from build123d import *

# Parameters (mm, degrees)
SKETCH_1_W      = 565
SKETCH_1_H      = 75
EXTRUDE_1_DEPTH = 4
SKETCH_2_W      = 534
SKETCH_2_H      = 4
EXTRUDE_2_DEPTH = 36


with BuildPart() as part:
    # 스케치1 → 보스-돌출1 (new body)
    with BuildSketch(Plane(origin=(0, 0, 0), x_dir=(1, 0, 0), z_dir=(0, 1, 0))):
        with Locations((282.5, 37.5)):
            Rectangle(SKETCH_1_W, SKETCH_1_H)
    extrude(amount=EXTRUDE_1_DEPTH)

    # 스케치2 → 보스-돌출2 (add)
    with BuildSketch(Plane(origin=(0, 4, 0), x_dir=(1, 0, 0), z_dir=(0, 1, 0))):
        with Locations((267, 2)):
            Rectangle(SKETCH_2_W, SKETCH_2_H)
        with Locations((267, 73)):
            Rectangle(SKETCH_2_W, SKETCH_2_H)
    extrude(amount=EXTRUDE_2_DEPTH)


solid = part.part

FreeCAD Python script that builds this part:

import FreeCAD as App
import Part
import Sketcher

V = App.Vector
Q = App.Units.Quantity


def add_polygon(sketch, points):
    """Adds a closed chain of lines whose ends are joined by coincident constraints."""
    first, n = sketch.GeometryCount, len(points)
    for a, b in zip(points, points[1:] + points[:1]):
        sketch.addGeometry(Part.LineSegment(App.Vector(*a, 0), App.Vector(*b, 0)), False)
    for i in range(n):
        sketch.addConstraint(Sketcher.Constraint("Coincident", first + i, 2, first + (i + 1) % n, 1))

doc = App.newDocument("Part")
body = doc.addObject("PartDesign::Body", "Body")

# Sketch on XZ plane
sketch1 = doc.addObject("Sketcher::SketchObject", "Sketch")
body.addObject(sketch1)
sketch1.AttachmentSupport = (doc.XZ_Plane, [""])
sketch1.MapMode = "FlatFace"
add_polygon(sketch1, [(0, -75), (0, 0), (565, 0), (565, -75)])  # lines 0-3
sketch1.addConstraint(Sketcher.Constraint("Vertical", 0))
sketch1.addConstraint(Sketcher.Constraint("Horizontal", 1))
sketch1.addConstraint(Sketcher.Constraint("Vertical", 2))
sketch1.addConstraint(Sketcher.Constraint("Horizontal", 3))
sketch1.addConstraint(Sketcher.Constraint("Coincident", 0, 2, -1, 1))
sketch1.addConstraint(Sketcher.Constraint("DistanceX", 1, 1, 1, 2, Q("565 mm")))
sketch1.addConstraint(Sketcher.Constraint("DistanceY", 0, 1, 0, 2, Q("75 mm")))
pad1 = doc.addObject("PartDesign::Pad", "Pad")
body.addObject(pad1)
pad1.Profile = sketch1
pad1.Length = 4
pad1.Reversed = True

# Sketch on XZ plane
sketch2 = doc.addObject("Sketcher::SketchObject", "Sketch001")
body.addObject(sketch2)
sketch2.AttachmentSupport = (doc.XZ_Plane, [""])
sketch2.MapMode = "FlatFace"
sketch2.AttachmentOffset = App.Placement(V(0, 0, -4), App.Rotation())
add_polygon(sketch2, [(0, -4), (0, 0), (534, 0), (534, -4)])  # lines 0-3
add_polygon(sketch2, [(0, -75), (0, -71), (534, -71), (534, -75)])  # lines 4-7
sketch2.addConstraint(Sketcher.Constraint("Vertical", 0))
sketch2.addConstraint(Sketcher.Constraint("Horizontal", 1))
sketch2.addConstraint(Sketcher.Constraint("Vertical", 2))
sketch2.addConstraint(Sketcher.Constraint("Horizontal", 3))
sketch2.addConstraint(Sketcher.Constraint("Vertical", 4))
sketch2.addConstraint(Sketcher.Constraint("Horizontal", 5))
sketch2.addConstraint(Sketcher.Constraint("Vertical", 6))
sketch2.addConstraint(Sketcher.Constraint("Horizontal", 7))
sketch2.addConstraint(Sketcher.Constraint("Coincident", 0, 2, -1, 1))
sketch2.addConstraint(Sketcher.Constraint("PointOnObject", 4, 2, -2))
sketch2.addConstraint(Sketcher.Constraint("Vertical", 2, 2, 5, 2))
sketch2.addConstraint(Sketcher.Constraint("Equal", 2, 4))
sketch2.addConstraint(Sketcher.Constraint("DistanceX", 1, 1, 1, 2, Q("534 mm")))
sketch2.addConstraint(Sketcher.Constraint("DistanceY", 0, 1, 0, 2, Q("4 mm")))
sketch2.addConstraint(Sketcher.Constraint("DistanceY", 4, 2, -1, 1, Q("71 mm")))
pad2 = doc.addObject("PartDesign::Pad", "Pad001")
body.addObject(pad2)
pad2.Profile = sketch2
pad2.Length = 36
pad2.Reversed = True

doc.recompute()
